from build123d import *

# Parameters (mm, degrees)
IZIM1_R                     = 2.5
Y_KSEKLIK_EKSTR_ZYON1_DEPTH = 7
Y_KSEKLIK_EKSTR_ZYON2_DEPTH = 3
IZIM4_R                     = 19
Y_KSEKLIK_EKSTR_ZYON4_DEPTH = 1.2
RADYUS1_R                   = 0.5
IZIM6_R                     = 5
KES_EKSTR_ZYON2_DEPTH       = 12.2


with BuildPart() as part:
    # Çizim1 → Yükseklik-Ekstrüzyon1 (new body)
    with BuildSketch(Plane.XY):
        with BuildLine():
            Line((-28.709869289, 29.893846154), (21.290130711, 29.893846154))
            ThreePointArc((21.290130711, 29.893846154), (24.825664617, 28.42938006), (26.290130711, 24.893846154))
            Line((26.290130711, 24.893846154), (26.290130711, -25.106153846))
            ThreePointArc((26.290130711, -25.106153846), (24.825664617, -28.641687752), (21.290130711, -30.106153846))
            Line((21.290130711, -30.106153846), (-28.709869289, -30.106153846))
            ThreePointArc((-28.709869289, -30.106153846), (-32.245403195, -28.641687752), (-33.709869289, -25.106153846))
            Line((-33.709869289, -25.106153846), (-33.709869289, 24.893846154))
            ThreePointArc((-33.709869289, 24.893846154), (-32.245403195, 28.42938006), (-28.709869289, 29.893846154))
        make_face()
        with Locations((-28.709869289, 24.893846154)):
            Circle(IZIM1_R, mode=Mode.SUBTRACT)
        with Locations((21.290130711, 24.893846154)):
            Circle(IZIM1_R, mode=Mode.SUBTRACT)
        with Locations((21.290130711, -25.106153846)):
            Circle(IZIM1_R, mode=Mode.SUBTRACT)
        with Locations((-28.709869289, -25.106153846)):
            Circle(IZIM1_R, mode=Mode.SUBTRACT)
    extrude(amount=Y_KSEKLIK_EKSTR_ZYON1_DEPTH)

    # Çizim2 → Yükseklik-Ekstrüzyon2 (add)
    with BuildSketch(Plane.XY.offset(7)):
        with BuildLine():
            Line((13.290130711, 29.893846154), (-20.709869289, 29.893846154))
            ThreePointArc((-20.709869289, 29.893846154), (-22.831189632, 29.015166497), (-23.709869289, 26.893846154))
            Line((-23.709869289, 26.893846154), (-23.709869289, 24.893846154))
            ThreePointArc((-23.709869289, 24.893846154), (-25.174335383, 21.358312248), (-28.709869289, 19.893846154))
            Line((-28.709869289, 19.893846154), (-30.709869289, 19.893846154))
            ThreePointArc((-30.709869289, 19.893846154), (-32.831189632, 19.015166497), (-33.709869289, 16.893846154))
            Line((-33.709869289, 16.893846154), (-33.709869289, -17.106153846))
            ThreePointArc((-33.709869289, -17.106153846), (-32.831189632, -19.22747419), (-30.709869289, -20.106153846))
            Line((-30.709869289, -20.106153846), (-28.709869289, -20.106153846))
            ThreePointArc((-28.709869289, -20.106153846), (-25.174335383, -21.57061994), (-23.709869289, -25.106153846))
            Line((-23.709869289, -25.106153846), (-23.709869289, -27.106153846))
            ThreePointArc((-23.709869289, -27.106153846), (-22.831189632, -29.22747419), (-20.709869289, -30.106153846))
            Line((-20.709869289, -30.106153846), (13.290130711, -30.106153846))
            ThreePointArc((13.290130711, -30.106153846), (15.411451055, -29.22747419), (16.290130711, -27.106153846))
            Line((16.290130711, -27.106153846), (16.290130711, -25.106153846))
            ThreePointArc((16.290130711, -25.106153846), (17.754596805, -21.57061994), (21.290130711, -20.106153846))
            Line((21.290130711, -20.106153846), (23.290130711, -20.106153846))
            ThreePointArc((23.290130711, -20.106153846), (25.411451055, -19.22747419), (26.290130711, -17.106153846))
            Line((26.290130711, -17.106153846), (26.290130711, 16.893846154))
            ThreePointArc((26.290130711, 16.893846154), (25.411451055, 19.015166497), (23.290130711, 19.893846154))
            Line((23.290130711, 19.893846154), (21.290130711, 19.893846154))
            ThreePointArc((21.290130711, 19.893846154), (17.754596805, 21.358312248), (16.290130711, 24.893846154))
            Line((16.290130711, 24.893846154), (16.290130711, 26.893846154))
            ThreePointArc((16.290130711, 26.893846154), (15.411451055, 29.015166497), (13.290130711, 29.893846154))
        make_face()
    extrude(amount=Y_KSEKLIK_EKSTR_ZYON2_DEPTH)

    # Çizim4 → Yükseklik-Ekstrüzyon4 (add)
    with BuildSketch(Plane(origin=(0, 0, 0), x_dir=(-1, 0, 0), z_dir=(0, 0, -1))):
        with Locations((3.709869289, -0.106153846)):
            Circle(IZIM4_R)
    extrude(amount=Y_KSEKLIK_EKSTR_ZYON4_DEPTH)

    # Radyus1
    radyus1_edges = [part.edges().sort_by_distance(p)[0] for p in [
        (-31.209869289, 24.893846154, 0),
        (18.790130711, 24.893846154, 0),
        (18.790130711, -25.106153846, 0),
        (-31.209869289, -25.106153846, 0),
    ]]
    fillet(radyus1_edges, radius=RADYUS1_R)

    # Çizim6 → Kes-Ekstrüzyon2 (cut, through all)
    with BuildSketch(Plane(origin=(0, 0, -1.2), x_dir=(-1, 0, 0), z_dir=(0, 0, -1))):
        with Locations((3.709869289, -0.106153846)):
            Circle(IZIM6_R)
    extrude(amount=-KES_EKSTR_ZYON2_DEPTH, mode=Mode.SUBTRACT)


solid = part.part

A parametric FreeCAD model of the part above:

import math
import FreeCAD as App
import Part
import Sketcher

V = App.Vector
Q = App.Units.Quantity


def edges_at(feature, points):
    """Names of the edges that pass closest to the given points."""
    edges = feature.Shape.Edges
    near = lambda p: min(range(len(edges)), key=lambda i: edges[i].distToShape(Part.Vertex(*p))[0])
    return sorted({f"Edge{near(p) + 1}" for p in points})

doc = App.newDocument("Part")
body = doc.addObject("PartDesign::Body", "Body")

# Sketch on XY plane
sketch1 = body.newObject("Sketcher::SketchObject", "Sketch")
sketch1.AttachmentSupport = (doc.getObject("XY_Plane"), [""])
sketch1.MapMode = "FlatFace"
sketch1.addGeometry([
    Part.LineSegment(V(21.3, 29.9, 0), V(-28.7, 29.9, 0)),  # 0
    Part.ArcOfCircle(Part.Circle(V(-28.7, 24.9, 0), V(0, 0, 1), 5), math.radians(90), math.radians(180)),  # 1
    Part.LineSegment(V(-33.7, 24.9, 0), V(-33.7, -25.1, 0)),  # 2
    Part.ArcOfCircle(Part.Circle(V(-28.7, -25.1, 0), V(0, 0, 1), 5), math.radians(180), math.radians(270)),  # 3
    Part.LineSegment(V(-28.7, -30.1, 0), V(21.3, -30.1, 0)),  # 4
    Part.ArcOfCircle(Part.Circle(V(21.3, -25.1, 0), V(0, 0, 1), 5), math.radians(-90), math.radians(0)),  # 5
    Part.LineSegment(V(26.3, -25.1, 0), V(26.3, 24.9, 0)),  # 6
    Part.ArcOfCircle(Part.Circle(V(21.3, 24.9, 0), V(0, 0, 1), 5), math.radians(0), math.radians(90)),  # 7
    Part.Circle(V(21.3, -25.1, 0), V(0, 0, 1), 2.5),  # 8
    Part.Circle(V(-28.7, -25.1, 0), V(0, 0, 1), 2.5),  # 9
    Part.Circle(V(21.3, 24.9, 0), V(0, 0, 1), 2.5),  # 10
    Part.Circle(V(-28.7, 24.9, 0), V(0, 0, 1), 2.5),  # 11
], False)
sketch1.addConstraint([
    Sketcher.Constraint("Tangent", 0, 2, 1, 1),
    Sketcher.Constraint("Tangent", 1, 2, 2, 1),
    Sketcher.Constraint("Tangent", 2, 2, 3, 1),
    Sketcher.Constraint("Tangent", 3, 2, 4, 1),
    Sketcher.Constraint("Tangent", 4, 2, 5, 1),
    Sketcher.Constraint("Tangent", 5, 2, 6, 1),
    Sketcher.Constraint("Tangent", 6, 2, 7, 1),
    Sketcher.Constraint("Tangent", 7, 2, 0, 1),
    Sketcher.Constraint("Horizontal", 0),
    Sketcher.Constraint("Vertical", 2),
    Sketcher.Constraint("Horizontal", 4),
    Sketcher.Constraint("Vertical", 6),
    Sketcher.Constraint("Coincident", 8, 3, 5, 3),
    Sketcher.Constraint("Coincident", 9, 3, 3, 3),
    Sketcher.Constraint("Coincident", 10, 3, 7, 3),
    Sketcher.Constraint("Coincident", 11, 3, 1, 3),
    Sketcher.Constraint("Equal", 1, 3),
    Sketcher.Constraint("Equal", 3, 5),
    Sketcher.Constraint("Equal", 5, 7),
    Sketcher.Constraint("Equal", 8, 9),
    Sketcher.Constraint("Equal", 9, 10),
    Sketcher.Constraint("Equal", 10, 11),
    Sketcher.Constraint("Equal", 4, 2),
    Sketcher.Constraint("Diameter", 8, Q("5 mm")),
    Sketcher.Constraint("Radius", 1, Q("5 mm")),
    Sketcher.Constraint("DistanceX", 0, 2, 0, 1, Q("50 mm")),
    Sketcher.Constraint("DistanceX", 1, 3, -1, 1, Q("28.709869 mm")),
    Sketcher.Constraint("DistanceY", -1, 1, 1, 3, Q("24.893846 mm")),
])
pad1 = body.newObject("PartDesign::Pad", "Pad")
pad1.Profile = sketch1
pad1.Length = 7

# Sketch on XY plane
sketch2 = body.newObject("Sketcher::SketchObject", "Sketch001")
sketch2.AttachmentSupport = (doc.getObject("XY_Plane"), [""])
sketch2.MapMode = "FlatFace"
sketch2.AttachmentOffset = App.Placement(V(0, 0, 7), App.Rotation())
sketch2.addGeometry([
    Part.LineSegment(V(13.3, 29.9, 0), V(-20.7, 29.9, 0)),  # 0
    Part.ArcOfCircle(Part.Circle(V(-20.7, 26.9, 0), V(0, 0, 1), 3), math.radians(90), math.radians(180)),  # 1
    Part.LineSegment(V(-23.7, 26.9, 0), V(-23.7, 24.9, 0)),  # 2
    Part.ArcOfCircle(Part.Circle(V(-28.7, 24.9, 0), V(0, 0, 1), 5), math.radians(-90), math.radians(0)),  # 3
    Part.LineSegment(V(-28.7, 19.9, 0), V(-30.7, 19.9, 0)),  # 4
    Part.ArcOfCircle(Part.Circle(V(-30.7, 16.9, 0), V(0, 0, 1), 3), math.radians(90), math.radians(180)),  # 5
    Part.LineSegment(V(-33.7, 16.9, 0), V(-33.7, -17.1, 0)),  # 6
    Part.ArcOfCircle(Part.Circle(V(-30.7, -17.1, 0), V(0, 0, 1), 3), math.radians(180), math.radians(270)),  # 7
    Part.LineSegment(V(-30.7, -20.1, 0), V(-28.7, -20.1, 0)),  # 8
    Part.ArcOfCircle(Part.Circle(V(-28.7, -25.1, 0), V(0, 0, 1), 5), math.radians(0), math.radians(90)),  # 9
    Part.LineSegment(V(-23.7, -25.1, 0), V(-23.7, -27.1, 0)),  # 10
    Part.ArcOfCircle(Part.Circle(V(-20.7, -27.1, 0), V(0, 0, 1), 3), math.radians(180), math.radians(270)),  # 11
    Part.LineSegment(V(-20.7, -30.1, 0), V(13.3, -30.1, 0)),  # 12
    Part.ArcOfCircle(Part.Circle(V(13.3, -27.1, 0), V(0, 0, 1), 3), math.radians(-90), math.radians(0)),  # 13
    Part.LineSegment(V(16.3, -27.1, 0), V(16.3, -25.1, 0)),  # 14
    Part.ArcOfCircle(Part.Circle(V(21.3, -25.1, 0), V(0, 0, 1), 5), math.radians(90), math.radians(180)),  # 15
    Part.LineSegment(V(21.3, -20.1, 0), V(23.3, -20.1, 0)),  # 16
    Part.ArcOfCircle(Part.Circle(V(23.3, -17.1, 0), V(0, 0, 1), 3), math.radians(-90), math.radians(0)),  # 17
    Part.LineSegment(V(26.3, -17.1, 0), V(26.3, 16.9, 0)),  # 18
    Part.ArcOfCircle(Part.Circle(V(23.3, 16.9, 0), V(0, 0, 1), 3), math.radians(0), math.radians(90)),  # 19
    Part.LineSegment(V(23.3, 19.9, 0), V(21.3, 19.9, 0)),  # 20
    Part.ArcOfCircle(Part.Circle(V(21.3, 24.9, 0), V(0, 0, 1), 5), math.radians(180), math.radians(270)),  # 21
    Part.LineSegment(V(16.3, 24.9, 0), V(16.3, 26.9, 0)),  # 22
    Part.ArcOfCircle(Part.Circle(V(13.3, 26.9, 0), V(0, 0, 1), 3), math.radians(0), math.radians(90)),  # 23
], False)
sketch2.addConstraint([
    Sketcher.Constraint("Tangent", 0, 2, 1, 1),
    Sketcher.Constraint("Tangent", 1, 2, 2, 1),
    Sketcher.Constraint("Tangent", 2, 2, 3, 2),
    Sketcher.Constraint("Tangent", 3, 1, 4, 1),
    Sketcher.Constraint("Tangent", 4, 2, 5, 1),
    Sketcher.Constraint("Tangent", 5, 2, 6, 1),
    Sketcher.Constraint("Tangent", 6, 2, 7, 1),
    Sketcher.Constraint("Tangent", 7, 2, 8, 1),
    Sketcher.Constraint("Tangent", 8, 2, 9, 2),
    Sketcher.Constraint("Tangent", 9, 1, 10, 1),
    Sketcher.Constraint("Tangent", 10, 2, 11, 1),
    Sketcher.Constraint("Tangent", 11, 2, 12, 1),
    Sketcher.Constraint("Tangent", 12, 2, 13, 1),
    Sketcher.Constraint("Tangent", 13, 2, 14, 1),
    Sketcher.Constraint("Tangent", 14, 2, 15, 2),
    Sketcher.Constraint("Tangent", 15, 1, 16, 1),
    Sketcher.Constraint("Tangent", 16, 2, 17, 1),
    Sketcher.Constraint("Tangent", 17, 2, 18, 1),
    Sketcher.Constraint("Tangent", 18, 2, 19, 1),
    Sketcher.Constraint("Tangent", 19, 2, 20, 1),
    Sketcher.Constraint("Tangent", 20, 2, 21, 2),
    Sketcher.Constraint("Tangent", 21, 1, 22, 1),
    Sketcher.Constraint("Tangent", 22, 2, 23, 1),
    Sketcher.Constraint("Tangent", 23, 2, 0, 1),
    Sketcher.Constraint("Horizontal", 0),
    Sketcher.Constraint("Vertical", 2),
    Sketcher.Constraint("Horizontal", 4),
    Sketcher.Constraint("Vertical", 6),
    Sketcher.Constraint("Horizontal", 8),
    Sketcher.Constraint("Vertical", 10),
    Sketcher.Constraint("Horizontal", 12),
    Sketcher.Constraint("Vertical", 14),
    Sketcher.Constraint("Horizontal", 16),
    Sketcher.Constraint("Vertical", 18),
    Sketcher.Constraint("Horizontal", 20),
    Sketcher.Constraint("Vertical", 22),
    Sketcher.Constraint("Equal", 1, 5),
    Sketcher.Constraint("Equal", 5, 7),
    Sketcher.Constraint("Equal", 3, 9),
    Sketcher.Constraint("Equal", 7, 11),
    Sketcher.Constraint("Equal", 11, 13),
    Sketcher.Constraint("Equal", 9, 15),
    Sketcher.Constraint("Equal", 13, 17),
    Sketcher.Constraint("Equal", 17, 19),
    Sketcher.Constraint("Equal", 15, 21),
    Sketcher.Constraint("Equal", 19, 23),
    Sketcher.Constraint("Horizontal", 9, 3, 15, 3),
    Sketcher.Constraint("Horizontal", 5, 3, 19, 3),
    Sketcher.Constraint("Vertical", 3, 3, 9, 3),
    Sketcher.Constraint("Vertical", 15, 3, 21, 3),
    Sketcher.Constraint("Equal", 8, 16),
    Sketcher.Constraint("Equal", 20, 2),
    Sketcher.Constraint("Equal", 12, 6),
    Sketcher.Constraint("Equal", 2, 10),
    Sketcher.Constraint("Radius", 1, Q("3 mm")),
    Sketcher.Constraint("Radius", 3, Q("5 mm")),
    Sketcher.Constraint("DistanceX", 0, 2, 0, 1, Q("34 mm")),
    Sketcher.Constraint("DistanceX", 4, 2, 4, 1, Q("2 mm")),
    Sketcher.Constraint("DistanceX", 1, 3, -1, 1, Q("20.709869 mm")),
    Sketcher.Constraint("DistanceY", -1, 1, 1, 3, Q("26.893846 mm")),
])
pad2 = body.newObject("PartDesign::Pad", "Pad001")
pad2.Profile = sketch2
pad2.Length = 3

# Sketch on XY plane
sketch3 = body.newObject("Sketcher::SketchObject", "Sketch002")
sketch3.AttachmentSupport = (doc.getObject("XY_Plane"), [""])
sketch3.MapMode = "FlatFace"
sketch3.addGeometry(Part.Circle(V(-4, 0, 0), V(0, 0, 1), 19), False)
sketch3.addConstraint([
    Sketcher.Constraint("Diameter", 0, Q("38 mm")),
    Sketcher.Constraint("DistanceX", 0, 3, -1, 1, Q("3.709869 mm")),
    Sketcher.Constraint("DistanceY", 0, 3, -1, 1, Q("0.106154 mm")),
])
pad3 = body.newObject("PartDesign::Pad", "Pad002")
pad3.Profile = sketch3
pad3.Length = 1.2
pad3.Reversed = True
doc.recompute()

fillet = body.newObject("PartDesign::Fillet", "Fillet")
fillet.Base = (pad3, edges_at(pad3, [
    (-31.21, 24.894, 0),
    (18.79, 24.894, 0),
    (18.79, -25.106, 0),
    (-31.21, -25.106, 0),
]))
fillet.Radius = 0.5

# Sketch on XY plane
sketch4 = body.newObject("Sketcher::SketchObject", "Sketch003")
sketch4.AttachmentSupport = (doc.getObject("XY_Plane"), [""])
sketch4.MapMode = "FlatFace"
sketch4.AttachmentOffset = App.Placement(V(0, 0, -1.2), App.Rotation())
sketch4.addGeometry(Part.Circle(V(-4, 0, 0), V(0, 0, 1), 5), False)
sketch4.addConstraint([
    Sketcher.Constraint("Diameter", 0, Q("10 mm")),
    Sketcher.Constraint("DistanceX", 0, 3, -1, 1, Q("3.709869 mm")),
    Sketcher.Constraint("DistanceY", 0, 3, -1, 1, Q("0.106154 mm")),
])
pocket1 = body.newObject("PartDesign::Pocket", "Pocket")
pocket1.Profile = sketch4
pocket1.Type = "ThroughAll"
pocket1.Reversed = True

doc.recompute()
